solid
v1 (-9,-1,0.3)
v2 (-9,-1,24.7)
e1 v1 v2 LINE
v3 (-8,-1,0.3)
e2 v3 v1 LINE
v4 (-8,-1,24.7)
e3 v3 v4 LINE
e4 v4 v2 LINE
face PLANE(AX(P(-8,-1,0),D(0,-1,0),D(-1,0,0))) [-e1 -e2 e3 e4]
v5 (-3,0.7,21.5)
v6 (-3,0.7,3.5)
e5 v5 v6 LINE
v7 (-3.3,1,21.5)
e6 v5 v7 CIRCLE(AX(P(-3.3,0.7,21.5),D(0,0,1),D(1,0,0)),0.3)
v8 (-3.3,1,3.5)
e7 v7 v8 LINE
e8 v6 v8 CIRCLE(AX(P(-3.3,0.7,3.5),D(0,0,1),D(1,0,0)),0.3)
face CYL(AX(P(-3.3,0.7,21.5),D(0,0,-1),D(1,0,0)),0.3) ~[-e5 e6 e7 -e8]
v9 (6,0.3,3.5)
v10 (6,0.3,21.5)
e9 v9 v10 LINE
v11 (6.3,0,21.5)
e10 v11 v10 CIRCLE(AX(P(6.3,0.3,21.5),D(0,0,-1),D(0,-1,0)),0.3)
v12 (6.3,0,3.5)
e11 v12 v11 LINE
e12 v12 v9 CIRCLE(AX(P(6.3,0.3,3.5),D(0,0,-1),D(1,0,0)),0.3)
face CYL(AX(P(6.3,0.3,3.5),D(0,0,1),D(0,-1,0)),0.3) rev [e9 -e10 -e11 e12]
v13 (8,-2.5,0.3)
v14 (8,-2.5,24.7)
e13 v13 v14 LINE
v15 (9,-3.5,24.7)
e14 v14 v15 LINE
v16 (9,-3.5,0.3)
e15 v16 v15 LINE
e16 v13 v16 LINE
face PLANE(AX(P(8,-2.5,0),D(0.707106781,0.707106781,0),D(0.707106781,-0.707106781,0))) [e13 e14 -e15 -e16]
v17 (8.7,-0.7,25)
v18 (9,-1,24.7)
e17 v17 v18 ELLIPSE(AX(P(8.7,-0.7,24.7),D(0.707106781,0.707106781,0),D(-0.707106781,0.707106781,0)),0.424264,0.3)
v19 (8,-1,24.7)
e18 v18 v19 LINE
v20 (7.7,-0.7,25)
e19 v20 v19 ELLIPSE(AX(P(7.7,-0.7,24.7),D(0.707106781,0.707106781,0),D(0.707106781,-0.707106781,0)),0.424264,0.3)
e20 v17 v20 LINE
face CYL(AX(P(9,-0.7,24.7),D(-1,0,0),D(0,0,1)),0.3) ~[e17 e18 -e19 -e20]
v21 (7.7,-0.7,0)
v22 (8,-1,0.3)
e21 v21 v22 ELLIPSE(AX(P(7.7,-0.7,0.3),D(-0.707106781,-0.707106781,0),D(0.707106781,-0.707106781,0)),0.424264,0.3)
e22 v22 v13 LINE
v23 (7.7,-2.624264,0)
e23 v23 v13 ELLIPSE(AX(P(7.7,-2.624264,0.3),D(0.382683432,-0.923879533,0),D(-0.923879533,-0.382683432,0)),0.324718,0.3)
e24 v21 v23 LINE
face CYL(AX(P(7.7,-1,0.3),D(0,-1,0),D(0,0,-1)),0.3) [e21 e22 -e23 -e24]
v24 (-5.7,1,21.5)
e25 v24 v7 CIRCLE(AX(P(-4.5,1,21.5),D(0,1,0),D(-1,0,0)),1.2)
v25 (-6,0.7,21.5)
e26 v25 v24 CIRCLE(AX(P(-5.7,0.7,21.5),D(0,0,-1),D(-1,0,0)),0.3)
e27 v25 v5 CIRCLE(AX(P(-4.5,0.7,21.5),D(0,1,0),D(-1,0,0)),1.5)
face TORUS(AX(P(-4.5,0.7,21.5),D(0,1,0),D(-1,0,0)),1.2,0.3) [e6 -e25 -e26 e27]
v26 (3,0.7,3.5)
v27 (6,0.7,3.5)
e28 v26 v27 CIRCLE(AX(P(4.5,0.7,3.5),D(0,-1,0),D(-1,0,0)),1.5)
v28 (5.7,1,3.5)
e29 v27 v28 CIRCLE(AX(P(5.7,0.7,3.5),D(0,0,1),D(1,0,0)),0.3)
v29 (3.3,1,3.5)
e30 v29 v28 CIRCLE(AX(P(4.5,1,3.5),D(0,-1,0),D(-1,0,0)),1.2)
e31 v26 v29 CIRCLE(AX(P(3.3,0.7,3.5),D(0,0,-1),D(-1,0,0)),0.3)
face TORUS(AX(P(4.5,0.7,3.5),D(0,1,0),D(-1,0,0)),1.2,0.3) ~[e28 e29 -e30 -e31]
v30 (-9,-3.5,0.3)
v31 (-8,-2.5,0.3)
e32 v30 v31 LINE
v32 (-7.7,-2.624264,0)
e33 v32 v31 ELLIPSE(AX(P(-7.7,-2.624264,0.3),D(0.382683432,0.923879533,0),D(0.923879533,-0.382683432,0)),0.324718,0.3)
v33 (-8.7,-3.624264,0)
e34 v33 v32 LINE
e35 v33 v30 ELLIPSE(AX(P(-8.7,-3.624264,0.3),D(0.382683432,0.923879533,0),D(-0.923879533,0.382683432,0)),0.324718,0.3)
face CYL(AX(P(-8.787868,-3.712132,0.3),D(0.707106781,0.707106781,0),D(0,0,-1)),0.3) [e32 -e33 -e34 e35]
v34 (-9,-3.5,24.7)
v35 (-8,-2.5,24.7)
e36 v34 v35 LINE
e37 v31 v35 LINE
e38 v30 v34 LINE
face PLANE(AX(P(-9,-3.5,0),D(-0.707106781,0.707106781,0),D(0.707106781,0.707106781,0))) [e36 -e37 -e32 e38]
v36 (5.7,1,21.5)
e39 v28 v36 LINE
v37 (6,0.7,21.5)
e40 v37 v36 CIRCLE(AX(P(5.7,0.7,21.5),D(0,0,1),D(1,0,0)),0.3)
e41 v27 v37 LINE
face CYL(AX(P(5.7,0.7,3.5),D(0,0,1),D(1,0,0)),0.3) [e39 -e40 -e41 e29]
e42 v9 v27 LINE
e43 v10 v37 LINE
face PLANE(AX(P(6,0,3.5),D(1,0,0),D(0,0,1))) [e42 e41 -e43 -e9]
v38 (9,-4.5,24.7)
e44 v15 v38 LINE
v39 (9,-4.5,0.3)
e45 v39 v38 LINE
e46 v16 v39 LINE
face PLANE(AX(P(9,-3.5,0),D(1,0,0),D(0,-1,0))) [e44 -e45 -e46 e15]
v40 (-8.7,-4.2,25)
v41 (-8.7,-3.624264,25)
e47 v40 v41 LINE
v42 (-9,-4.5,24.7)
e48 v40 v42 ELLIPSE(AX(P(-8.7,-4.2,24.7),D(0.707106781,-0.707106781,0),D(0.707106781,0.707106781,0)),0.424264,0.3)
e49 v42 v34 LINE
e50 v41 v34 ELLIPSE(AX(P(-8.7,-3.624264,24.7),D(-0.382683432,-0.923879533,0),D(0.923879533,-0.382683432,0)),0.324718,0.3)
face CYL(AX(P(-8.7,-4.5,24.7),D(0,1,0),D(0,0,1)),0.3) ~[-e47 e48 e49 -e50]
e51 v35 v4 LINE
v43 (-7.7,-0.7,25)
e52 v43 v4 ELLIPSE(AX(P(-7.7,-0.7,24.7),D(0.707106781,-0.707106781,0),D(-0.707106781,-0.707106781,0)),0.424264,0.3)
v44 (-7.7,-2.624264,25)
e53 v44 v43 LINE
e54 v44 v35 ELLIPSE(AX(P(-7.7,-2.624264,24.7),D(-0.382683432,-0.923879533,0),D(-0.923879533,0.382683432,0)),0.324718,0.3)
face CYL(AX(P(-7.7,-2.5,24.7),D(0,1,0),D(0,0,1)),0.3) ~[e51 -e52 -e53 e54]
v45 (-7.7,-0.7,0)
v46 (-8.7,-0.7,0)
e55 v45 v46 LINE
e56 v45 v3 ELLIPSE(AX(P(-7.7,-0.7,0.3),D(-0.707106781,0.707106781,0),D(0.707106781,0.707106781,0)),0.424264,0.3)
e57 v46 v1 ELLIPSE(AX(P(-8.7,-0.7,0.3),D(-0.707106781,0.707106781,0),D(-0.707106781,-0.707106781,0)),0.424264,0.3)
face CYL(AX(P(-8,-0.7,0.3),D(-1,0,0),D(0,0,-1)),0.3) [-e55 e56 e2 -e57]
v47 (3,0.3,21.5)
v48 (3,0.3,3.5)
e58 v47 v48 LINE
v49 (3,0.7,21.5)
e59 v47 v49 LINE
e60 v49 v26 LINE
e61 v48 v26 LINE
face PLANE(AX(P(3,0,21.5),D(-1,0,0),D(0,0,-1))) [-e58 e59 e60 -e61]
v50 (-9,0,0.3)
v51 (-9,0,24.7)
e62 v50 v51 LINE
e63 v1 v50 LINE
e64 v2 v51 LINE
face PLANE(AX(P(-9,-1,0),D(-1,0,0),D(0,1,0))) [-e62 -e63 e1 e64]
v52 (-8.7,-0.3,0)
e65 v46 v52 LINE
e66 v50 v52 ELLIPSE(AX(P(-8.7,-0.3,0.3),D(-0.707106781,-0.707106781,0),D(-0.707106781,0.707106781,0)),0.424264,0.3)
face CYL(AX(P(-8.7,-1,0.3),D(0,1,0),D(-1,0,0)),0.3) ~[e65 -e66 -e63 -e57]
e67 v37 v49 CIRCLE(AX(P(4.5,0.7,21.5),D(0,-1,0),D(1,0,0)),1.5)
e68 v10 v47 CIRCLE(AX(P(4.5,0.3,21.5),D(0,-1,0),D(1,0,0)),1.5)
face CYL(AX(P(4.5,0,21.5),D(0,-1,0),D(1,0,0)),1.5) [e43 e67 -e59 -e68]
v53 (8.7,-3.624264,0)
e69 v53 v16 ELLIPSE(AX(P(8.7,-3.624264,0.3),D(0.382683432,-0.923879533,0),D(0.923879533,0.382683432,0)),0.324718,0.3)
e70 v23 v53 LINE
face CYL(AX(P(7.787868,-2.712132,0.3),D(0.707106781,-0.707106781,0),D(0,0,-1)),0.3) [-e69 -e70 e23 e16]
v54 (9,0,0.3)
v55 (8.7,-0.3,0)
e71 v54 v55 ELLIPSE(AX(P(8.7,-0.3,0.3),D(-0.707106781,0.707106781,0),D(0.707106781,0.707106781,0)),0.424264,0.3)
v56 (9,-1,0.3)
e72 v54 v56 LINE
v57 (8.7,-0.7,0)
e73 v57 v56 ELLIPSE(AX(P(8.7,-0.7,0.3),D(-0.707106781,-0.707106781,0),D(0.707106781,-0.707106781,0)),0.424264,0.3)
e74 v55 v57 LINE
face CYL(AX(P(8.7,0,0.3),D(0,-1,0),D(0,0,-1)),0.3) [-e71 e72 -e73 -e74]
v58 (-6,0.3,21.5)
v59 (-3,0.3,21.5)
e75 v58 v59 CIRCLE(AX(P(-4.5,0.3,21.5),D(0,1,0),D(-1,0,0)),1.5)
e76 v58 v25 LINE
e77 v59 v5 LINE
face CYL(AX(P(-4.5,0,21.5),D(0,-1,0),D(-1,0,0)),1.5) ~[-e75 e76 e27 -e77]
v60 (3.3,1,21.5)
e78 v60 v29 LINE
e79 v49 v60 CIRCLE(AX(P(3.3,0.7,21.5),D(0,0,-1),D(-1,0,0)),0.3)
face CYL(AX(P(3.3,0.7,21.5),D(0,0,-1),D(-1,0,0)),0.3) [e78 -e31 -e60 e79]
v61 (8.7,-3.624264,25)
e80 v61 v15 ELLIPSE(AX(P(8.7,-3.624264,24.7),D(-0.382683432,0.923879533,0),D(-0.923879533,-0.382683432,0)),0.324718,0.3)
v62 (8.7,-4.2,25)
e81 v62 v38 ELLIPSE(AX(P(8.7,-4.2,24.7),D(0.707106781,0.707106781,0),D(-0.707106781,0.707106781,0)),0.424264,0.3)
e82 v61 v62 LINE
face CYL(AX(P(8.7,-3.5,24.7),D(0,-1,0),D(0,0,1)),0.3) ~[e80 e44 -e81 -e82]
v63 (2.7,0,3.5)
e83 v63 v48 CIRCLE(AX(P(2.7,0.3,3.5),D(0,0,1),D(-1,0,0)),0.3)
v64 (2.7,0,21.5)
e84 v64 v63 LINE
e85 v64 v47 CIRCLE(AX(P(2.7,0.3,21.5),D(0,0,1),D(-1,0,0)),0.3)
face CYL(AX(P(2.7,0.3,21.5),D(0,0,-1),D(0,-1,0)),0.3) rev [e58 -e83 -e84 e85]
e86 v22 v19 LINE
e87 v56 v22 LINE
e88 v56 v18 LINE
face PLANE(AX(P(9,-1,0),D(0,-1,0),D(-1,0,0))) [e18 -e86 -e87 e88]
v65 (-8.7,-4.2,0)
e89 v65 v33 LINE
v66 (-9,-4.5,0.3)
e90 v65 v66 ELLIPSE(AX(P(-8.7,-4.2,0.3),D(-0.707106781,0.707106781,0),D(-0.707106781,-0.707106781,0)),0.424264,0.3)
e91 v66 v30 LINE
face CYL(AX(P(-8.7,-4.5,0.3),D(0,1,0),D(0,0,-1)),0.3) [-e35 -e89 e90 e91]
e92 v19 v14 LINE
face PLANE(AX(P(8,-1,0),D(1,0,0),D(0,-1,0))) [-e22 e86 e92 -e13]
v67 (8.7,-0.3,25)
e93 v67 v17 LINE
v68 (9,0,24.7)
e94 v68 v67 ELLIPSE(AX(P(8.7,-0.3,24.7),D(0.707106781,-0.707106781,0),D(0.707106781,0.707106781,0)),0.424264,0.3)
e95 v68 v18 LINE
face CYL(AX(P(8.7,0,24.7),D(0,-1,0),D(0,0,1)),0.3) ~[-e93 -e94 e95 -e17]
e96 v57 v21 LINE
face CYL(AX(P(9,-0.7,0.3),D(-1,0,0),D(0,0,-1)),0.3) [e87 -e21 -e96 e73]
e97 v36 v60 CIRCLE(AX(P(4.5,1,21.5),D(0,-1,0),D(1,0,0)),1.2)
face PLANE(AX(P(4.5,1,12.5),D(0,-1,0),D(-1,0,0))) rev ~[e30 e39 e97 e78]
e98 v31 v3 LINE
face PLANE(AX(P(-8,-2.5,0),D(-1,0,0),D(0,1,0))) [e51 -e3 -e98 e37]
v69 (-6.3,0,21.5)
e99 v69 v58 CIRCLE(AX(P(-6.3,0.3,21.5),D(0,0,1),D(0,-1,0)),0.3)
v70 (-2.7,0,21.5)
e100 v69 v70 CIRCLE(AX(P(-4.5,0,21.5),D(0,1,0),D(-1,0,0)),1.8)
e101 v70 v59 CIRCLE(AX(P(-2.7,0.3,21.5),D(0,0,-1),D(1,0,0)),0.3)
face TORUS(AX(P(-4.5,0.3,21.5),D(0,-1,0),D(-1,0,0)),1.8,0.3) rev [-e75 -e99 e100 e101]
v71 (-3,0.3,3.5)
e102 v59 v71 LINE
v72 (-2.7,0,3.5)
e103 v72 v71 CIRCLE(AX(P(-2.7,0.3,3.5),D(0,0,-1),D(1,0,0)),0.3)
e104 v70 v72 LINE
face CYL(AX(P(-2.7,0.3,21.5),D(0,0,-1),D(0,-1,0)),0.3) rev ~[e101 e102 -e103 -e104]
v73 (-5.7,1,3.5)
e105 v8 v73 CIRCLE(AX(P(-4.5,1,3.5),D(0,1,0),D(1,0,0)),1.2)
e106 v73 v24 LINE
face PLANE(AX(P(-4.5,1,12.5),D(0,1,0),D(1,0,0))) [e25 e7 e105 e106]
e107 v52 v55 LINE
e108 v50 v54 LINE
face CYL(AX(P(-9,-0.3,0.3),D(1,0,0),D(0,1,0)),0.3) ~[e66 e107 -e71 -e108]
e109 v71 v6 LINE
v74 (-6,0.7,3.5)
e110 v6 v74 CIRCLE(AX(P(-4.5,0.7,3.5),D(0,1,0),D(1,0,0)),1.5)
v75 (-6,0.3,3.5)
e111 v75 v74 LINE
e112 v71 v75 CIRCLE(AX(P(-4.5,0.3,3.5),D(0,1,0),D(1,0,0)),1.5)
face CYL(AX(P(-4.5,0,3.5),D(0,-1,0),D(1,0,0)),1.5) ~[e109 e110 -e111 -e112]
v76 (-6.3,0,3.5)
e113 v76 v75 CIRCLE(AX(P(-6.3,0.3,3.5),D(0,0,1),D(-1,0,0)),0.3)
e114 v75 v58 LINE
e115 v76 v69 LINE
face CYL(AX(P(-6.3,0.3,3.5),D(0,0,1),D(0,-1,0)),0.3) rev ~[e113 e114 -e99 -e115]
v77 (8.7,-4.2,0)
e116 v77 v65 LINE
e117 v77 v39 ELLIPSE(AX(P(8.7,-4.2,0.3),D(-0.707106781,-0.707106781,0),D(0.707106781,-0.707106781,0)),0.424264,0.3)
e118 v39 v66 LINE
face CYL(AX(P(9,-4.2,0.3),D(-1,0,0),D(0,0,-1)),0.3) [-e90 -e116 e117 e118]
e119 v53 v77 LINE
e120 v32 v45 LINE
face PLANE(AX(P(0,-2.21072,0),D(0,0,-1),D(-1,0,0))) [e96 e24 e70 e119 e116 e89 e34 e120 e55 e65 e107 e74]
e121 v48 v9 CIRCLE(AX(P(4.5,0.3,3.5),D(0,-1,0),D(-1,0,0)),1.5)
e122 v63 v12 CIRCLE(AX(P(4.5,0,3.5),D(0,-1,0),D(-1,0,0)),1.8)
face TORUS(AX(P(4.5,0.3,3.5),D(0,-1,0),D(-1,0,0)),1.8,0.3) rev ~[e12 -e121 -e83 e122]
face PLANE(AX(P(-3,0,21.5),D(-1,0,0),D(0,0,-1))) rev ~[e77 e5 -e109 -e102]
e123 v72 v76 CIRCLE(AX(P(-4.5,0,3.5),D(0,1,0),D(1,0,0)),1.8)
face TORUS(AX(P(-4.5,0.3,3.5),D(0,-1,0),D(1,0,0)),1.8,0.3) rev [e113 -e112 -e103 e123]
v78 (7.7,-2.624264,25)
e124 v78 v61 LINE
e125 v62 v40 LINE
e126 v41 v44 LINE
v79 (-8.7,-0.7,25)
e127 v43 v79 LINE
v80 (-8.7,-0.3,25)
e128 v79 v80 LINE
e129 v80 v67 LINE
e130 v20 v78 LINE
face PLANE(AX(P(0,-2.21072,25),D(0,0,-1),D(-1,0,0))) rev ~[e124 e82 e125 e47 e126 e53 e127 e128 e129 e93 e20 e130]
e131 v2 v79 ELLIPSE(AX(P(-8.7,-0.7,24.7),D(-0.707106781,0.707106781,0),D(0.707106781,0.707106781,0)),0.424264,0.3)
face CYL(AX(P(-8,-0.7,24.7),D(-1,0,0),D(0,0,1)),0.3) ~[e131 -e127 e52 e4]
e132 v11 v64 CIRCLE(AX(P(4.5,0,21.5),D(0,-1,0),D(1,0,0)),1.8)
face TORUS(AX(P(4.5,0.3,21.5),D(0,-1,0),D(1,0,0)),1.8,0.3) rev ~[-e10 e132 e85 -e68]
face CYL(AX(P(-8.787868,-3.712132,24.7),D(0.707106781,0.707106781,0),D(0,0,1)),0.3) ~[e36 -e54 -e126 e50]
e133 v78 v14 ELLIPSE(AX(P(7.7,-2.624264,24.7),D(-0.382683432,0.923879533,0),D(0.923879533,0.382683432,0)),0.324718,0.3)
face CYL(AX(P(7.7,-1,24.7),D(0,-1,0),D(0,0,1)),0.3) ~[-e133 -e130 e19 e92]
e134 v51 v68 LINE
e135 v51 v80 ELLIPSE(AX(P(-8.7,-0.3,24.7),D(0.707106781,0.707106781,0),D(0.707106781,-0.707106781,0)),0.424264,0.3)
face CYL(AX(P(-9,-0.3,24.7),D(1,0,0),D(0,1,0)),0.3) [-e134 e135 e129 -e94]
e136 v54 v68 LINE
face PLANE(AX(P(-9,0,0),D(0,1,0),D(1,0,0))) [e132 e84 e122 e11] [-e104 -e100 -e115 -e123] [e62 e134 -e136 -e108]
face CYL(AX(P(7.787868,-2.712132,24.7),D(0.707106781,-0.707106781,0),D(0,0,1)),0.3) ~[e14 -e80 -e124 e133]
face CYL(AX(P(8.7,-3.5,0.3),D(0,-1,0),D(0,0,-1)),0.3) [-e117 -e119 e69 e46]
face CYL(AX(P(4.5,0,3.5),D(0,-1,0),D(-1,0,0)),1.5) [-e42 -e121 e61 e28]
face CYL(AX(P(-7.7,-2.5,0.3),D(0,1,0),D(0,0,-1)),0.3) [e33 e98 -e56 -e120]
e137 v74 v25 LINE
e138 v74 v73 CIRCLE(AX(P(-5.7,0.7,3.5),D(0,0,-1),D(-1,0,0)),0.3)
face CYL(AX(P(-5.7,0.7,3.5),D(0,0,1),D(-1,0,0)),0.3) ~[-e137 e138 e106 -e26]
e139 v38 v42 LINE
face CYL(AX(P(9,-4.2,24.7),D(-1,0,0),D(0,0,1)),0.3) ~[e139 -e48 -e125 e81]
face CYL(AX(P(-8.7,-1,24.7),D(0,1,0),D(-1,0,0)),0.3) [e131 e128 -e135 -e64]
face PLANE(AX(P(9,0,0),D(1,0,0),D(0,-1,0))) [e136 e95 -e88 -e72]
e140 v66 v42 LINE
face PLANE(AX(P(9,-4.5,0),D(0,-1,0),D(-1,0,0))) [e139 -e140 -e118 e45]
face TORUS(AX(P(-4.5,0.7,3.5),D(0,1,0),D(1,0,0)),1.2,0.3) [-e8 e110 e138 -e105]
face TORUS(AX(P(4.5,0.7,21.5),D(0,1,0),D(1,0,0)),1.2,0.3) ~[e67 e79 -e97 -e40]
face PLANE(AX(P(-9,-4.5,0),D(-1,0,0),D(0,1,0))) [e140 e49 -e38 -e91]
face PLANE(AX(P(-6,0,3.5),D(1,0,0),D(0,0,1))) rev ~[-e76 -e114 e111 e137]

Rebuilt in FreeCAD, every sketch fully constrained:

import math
import FreeCAD as App
import Part
import Sketcher

V = App.Vector


def edges_at(feature, points):
    """Names of the edges that pass closest to the given points."""
    edges = feature.Shape.Edges
    near = lambda p: min(range(len(edges)), key=lambda i: edges[i].distToShape(Part.Vertex(*p))[0])
    return sorted({f"Edge{near(p) + 1}" for p in points})


def add_polygon(sketch, points):
    """Adds a closed chain of lines whose ends are joined by coincident constraints."""
    first, n = sketch.GeometryCount, len(points)
    for a, b in zip(points, points[1:] + points[:1]):
        sketch.addGeometry(Part.LineSegment(App.Vector(*a, 0), App.Vector(*b, 0)), False)
    for i in range(n):
        sketch.addConstraint(Sketcher.Constraint("Coincident", first + i, 2, first + (i + 1) % n, 1))

doc = App.newDocument("Part")
body = doc.addObject("PartDesign::Body", "Body")

# Sketch on XY plane
sketch1 = body.newObject("Sketcher::SketchObject", "Sketch")
sketch1.AttachmentSupport = (doc.getObject("XY_Plane"), [""])
sketch1.MapMode = "FlatFace"
add_polygon(sketch1, [(8, -2.5), (8, -1), (9, -1), (9, 0), (-9, 0), (-9, -1), (-8, -1), (-8, -2.5), (-9, -3.5), (-9, -4.5), (9, -4.5), (9, -3.5)])  # lines 0-11
sketch1.addConstraint(Sketcher.Constraint("Vertical", 0))
sketch1.addConstraint(Sketcher.Constraint("Horizontal", 1))
sketch1.addConstraint(Sketcher.Constraint("Vertical", 2))
sketch1.addConstraint(Sketcher.Constraint("Horizontal", 3))
sketch1.addConstraint(Sketcher.Constraint("Vertical", 4))
sketch1.addConstraint(Sketcher.Constraint("Horizontal", 5))
sketch1.addConstraint(Sketcher.Constraint("Vertical", 6))
sketch1.addConstraint(Sketcher.Constraint("Vertical", 8))
sketch1.addConstraint(Sketcher.Constraint("Horizontal", 9))
sketch1.addConstraint(Sketcher.Constraint("Vertical", 10))
sketch1.addConstraint(Sketcher.Constraint("Symmetric", 2, 2, 3, 2, -1, 1))
sketch1.addConstraint(Sketcher.Constraint("Symmetric", 0, 2, 5, 2, -2))
sketch1.addConstraint(Sketcher.Constraint("Symmetric", 7, 2, 10, 2, -2))
sketch1.addConstraint(Sketcher.Constraint("Perpendicular", 7, 11))
sketch1.addConstraint(Sketcher.Constraint("Horizontal", 6, 2, 11, 2))
sketch1.addConstraint(Sketcher.Constraint("Vertical", 4, 2, 7, 2))
sketch1.addConstraint(Sketcher.Constraint("Equal", 5, 2))
sketch1.addConstraint(Sketcher.Constraint("Equal", 4, 8))
sketch1.addConstraint(Sketcher.Constraint("DistanceX", 1, 1, 1, 2, 1.0))
sketch1.addConstraint(Sketcher.Constraint("DistanceX", 3, 2, 3, 1, 18.0))
sketch1.addConstraint(Sketcher.Constraint("DistanceY", 0, 1, 0, 2, 1.5))
pad1 = body.newObject("PartDesign::Pad", "Pad")
pad1.Profile = sketch1
pad1.Length = 25

# Sketch on XZ plane
sketch2 = body.newObject("Sketcher::SketchObject", "Sketch001")
sketch2.AttachmentSupport = (doc.getObject("XZ_Plane"), [""])
sketch2.MapMode = "FlatFace"
sketch2.addGeometry(Part.LineSegment(V(6, 21.5, 0), V(6, 3.5, 0)), False)
sketch2.addGeometry(Part.ArcOfCircle(Part.Circle(V(4.5, 3.5, 0), V(0, 0, 1), 1.5), math.radians(180), math.radians(360)), False)
sketch2.addGeometry(Part.LineSegment(V(3, 3.5, 0), V(3, 21.5, 0)), False)
sketch2.addGeometry(Part.ArcOfCircle(Part.Circle(V(4.5, 21.5, 0), V(0, 0, 1), 1.5), math.radians(0), math.radians(180)), False)
sketch2.addGeometry(Part.LineSegment(V(-6, 3.5, 0), V(-6, 21.5, 0)), False)
sketch2.addGeometry(Part.ArcOfCircle(Part.Circle(V(-4.5, 21.5, 0), V(0, 0, 1), 1.5), math.radians(0), math.radians(180)), False)
sketch2.addGeometry(Part.LineSegment(V(-3, 21.5, 0), V(-3, 3.5, 0)), False)
sketch2.addGeometry(Part.ArcOfCircle(Part.Circle(V(-4.5, 3.5, 0), V(0, 0, 1), 1.5), math.radians(180), math.radians(360)), False)
sketch2.addConstraint(Sketcher.Constraint("Tangent", 0, 2, 1, 2))
sketch2.addConstraint(Sketcher.Constraint("Tangent", 1, 1, 2, 1))
sketch2.addConstraint(Sketcher.Constraint("Tangent", 2, 2, 3, 2))
sketch2.addConstraint(Sketcher.Constraint("Tangent", 3, 1, 0, 1))
sketch2.addConstraint(Sketcher.Constraint("Tangent", 4, 2, 5, 2))
sketch2.addConstraint(Sketcher.Constraint("Tangent", 5, 1, 6, 1))
sketch2.addConstraint(Sketcher.Constraint("Tangent", 6, 2, 7, 2))
sketch2.addConstraint(Sketcher.Constraint("Tangent", 7, 1, 4, 1))
sketch2.addConstraint(Sketcher.Constraint("Vertical", 0))
sketch2.addConstraint(Sketcher.Constraint("Vertical", 2))
sketch2.addConstraint(Sketcher.Constraint("Vertical", 4))
sketch2.addConstraint(Sketcher.Constraint("Vertical", 6))
sketch2.addConstraint(Sketcher.Constraint("Equal", 3, 5))
sketch2.addConstraint(Sketcher.Constraint("Symmetric", 3, 3, 5, 3, -2))
sketch2.addConstraint(Sketcher.Constraint("Horizontal", 1, 3, 7, 3))
sketch2.addConstraint(Sketcher.Constraint("Radius", 1, 1.5))
sketch2.addConstraint(Sketcher.Constraint("DistanceY", 0, 2, 0, 1, 18.0))
sketch2.addConstraint(Sketcher.Constraint("DistanceX", -1, 1, 0, 2, 6.0))
sketch2.addConstraint(Sketcher.Constraint("DistanceY", -1, 1, 1, 3, 3.5))
pad2 = body.newObject("PartDesign::Pad", "Pad001")
pad2.Profile = sketch2
pad2.Length = 1
pad2.Reversed = True
doc.recompute()

fillet = body.newObject("PartDesign::Fillet", "Fillet")
fillet.Base = (pad2, edges_at(pad2, [
    (4.5, 0, 2),
    (3, 0, 12.5),
    (4.5, 0, 23),
    (6, 0, 12.5),
    (4.5, 1, 2),
    (3, 1, 12.5),
    (4.5, 1, 23),
    (6, 1, 12.5),
    (-4.5, 0, 2),
    (-6, 0, 12.5),
    (-4.5, 0, 23),
    (-3, 0, 12.5),
    (-4.5, 1, 2),
    (-6, 1, 12.5),
    (-4.5, 1, 23),
    (-3, 1, 12.5),
]))
fillet.Radius = 0.3
doc.recompute()

fillet2 = body.newObject("PartDesign::Fillet", "Fillet001")
fillet2.Base = (fillet, edges_at(fillet, [
    (8, -1.75, 0),
    (8.5, -3, 0),
    (0, 0, 25),
    (9, -4, 0),
    (0, -4.5, 0),
    (-9, -4, 0),
    (-8.5, -3, 0),
    (-8, -1.75, 0),
    (-8.5, -1, 0),
    (-9, -0.5, 0),
    (0, 0, 0),
    (9, -0.5, 0),
    (8.5, -1, 0),
    (-9, -0.5, 25),
    (-8.5, -1, 25),
    (-8, -1.75, 25),
    (-8.5, -3, 25),
    (-9, -4, 25),
    (0, -4.5, 25),
    (9, -4, 25),
    (8.5, -3, 25),
    (8, -1.75, 25),
    (8.5, -1, 25),
    (9, -0.5, 25),
]))
fillet2.Radius = 0.3

doc.recompute()
